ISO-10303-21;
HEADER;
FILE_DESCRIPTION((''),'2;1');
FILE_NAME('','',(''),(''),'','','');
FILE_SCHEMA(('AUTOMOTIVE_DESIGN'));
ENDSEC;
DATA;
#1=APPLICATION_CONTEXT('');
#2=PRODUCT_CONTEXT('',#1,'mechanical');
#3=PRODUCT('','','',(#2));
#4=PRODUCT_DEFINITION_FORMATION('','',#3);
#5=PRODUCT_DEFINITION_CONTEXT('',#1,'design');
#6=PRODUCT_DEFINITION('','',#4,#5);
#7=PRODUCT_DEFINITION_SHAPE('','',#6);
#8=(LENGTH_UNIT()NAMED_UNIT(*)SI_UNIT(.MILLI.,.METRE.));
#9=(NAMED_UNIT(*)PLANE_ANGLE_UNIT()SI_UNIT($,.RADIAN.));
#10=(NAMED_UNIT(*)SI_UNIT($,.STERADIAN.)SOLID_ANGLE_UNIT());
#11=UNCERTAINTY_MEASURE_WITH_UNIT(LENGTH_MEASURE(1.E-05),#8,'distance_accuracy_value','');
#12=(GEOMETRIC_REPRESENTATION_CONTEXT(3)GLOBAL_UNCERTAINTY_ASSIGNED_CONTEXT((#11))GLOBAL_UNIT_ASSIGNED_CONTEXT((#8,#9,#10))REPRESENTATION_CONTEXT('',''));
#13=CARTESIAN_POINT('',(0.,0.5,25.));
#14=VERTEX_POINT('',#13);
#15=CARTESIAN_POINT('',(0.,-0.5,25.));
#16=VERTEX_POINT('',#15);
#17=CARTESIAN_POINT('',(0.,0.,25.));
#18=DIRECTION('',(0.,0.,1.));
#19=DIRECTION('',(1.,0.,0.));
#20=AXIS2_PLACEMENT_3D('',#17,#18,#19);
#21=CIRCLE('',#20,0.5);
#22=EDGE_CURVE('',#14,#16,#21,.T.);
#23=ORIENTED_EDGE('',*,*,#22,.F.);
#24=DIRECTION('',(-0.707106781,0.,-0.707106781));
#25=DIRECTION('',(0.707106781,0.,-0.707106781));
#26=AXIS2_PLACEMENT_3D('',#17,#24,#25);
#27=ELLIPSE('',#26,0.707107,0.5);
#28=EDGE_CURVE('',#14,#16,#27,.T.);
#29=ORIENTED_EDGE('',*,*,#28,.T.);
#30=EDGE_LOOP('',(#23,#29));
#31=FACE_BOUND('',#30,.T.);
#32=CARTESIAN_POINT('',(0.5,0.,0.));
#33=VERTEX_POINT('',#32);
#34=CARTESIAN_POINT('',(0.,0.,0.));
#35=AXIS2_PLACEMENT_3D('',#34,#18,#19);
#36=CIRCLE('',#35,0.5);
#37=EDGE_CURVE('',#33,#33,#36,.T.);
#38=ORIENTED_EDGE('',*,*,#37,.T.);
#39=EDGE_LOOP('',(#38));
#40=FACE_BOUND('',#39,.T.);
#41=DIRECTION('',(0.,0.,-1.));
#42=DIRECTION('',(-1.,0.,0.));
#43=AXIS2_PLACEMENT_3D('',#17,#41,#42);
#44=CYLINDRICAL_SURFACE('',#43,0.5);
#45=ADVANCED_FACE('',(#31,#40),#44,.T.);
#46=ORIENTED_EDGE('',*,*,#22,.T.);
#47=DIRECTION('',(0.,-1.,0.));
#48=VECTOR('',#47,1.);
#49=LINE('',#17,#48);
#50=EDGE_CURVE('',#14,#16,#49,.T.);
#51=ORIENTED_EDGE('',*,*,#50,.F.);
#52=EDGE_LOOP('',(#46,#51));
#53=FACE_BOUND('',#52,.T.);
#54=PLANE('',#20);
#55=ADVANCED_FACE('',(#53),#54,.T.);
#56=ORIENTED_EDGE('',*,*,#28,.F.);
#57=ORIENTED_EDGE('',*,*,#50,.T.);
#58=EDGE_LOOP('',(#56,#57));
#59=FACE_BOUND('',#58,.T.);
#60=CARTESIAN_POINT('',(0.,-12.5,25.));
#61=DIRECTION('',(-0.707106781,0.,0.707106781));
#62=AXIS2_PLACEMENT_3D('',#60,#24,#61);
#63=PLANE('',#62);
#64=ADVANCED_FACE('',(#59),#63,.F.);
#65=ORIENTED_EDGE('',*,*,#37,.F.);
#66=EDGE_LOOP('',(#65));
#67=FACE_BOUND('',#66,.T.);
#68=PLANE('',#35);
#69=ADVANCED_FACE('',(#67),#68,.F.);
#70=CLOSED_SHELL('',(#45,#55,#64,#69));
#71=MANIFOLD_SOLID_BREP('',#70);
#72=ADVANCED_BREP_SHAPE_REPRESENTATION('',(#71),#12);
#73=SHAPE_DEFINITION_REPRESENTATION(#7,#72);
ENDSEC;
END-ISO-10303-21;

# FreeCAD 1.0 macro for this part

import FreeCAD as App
import Part
import Sketcher

V = App.Vector

doc = App.newDocument("Part")
params = doc.addObject("Spreadsheet::Sheet", "Params")
for row, (alias, value) in enumerate([
    ("sketch1_diameter", "1 mm"),
    ("pad1_length", "25 mm"),
    ("sketch2_width", "0.5 mm"),
    ("pocket1_length", "25 mm"),
], start=1):
    params.set(f"A{row}", alias)
    params.set(f"B{row}", "=" + value)
    params.setAlias(f"B{row}", alias)

body = doc.addObject("PartDesign::Body", "Body")

# Sketch on XY plane
sketch1 = doc.addObject("Sketcher::SketchObject", "Sketch")
body.addObject(sketch1)
sketch1.AttachmentSupport = (doc.XY_Plane, [""])
sketch1.MapMode = "FlatFace"
sketch1.addGeometry(Part.Circle(V(0, 0, 0), V(0, 0, 1), 0.5), False)
sketch1.addConstraint([
    Sketcher.Constraint("Coincident", 0, 3, -1, 1),
    Sketcher.Constraint("Diameter", 0, 1.0),
])
sketch1.setExpression("Constraints[1]", "Params.sketch1_diameter")
pad1 = doc.addObject("PartDesign::Pad", "Pad")
body.addObject(pad1)
pad1.Profile = sketch1
pad1.setExpression("Length", "Params.pad1_length")

# Sketch on XZ plane
sketch2 = doc.addObject("Sketcher::SketchObject", "Sketch001")
body.addObject(sketch2)
sketch2.AttachmentSupport = (doc.XZ_Plane, [""])
sketch2.MapMode = "FlatFace"
sketch2.addGeometry([
    Part.LineSegment(V(0.5, 24.5, 0), V(0, 25, 0)),
    Part.LineSegment(V(0, 25, 0), V(0.5, 25, 0)),
    Part.LineSegment(V(0.5, 25, 0), V(0.5, 24.5, 0)),
], False)
sketch2.addConstraint([
    Sketcher.Constraint("Coincident", 0, 2, 1, 1),
    Sketcher.Constraint("Coincident", 1, 2, 2, 1),
    Sketcher.Constraint("Coincident", 2, 2, 0, 1),
    Sketcher.Constraint("Horizontal", 1),
    Sketcher.Constraint("Vertical", 2),
    Sketcher.Constraint("PointOnObject", 0, 2, -2),
    Sketcher.Constraint("Equal", 1, 2),
    Sketcher.Constraint("DistanceX", 1, 1, 1, 2, 0.5),
    Sketcher.Constraint("DistanceY", -1, 1, 0, 2, 25.0),
])
sketch2.setExpression("Constraints[7]", "Params.sketch2_width")
pocket1 = doc.addObject("PartDesign::Pocket", "Pocket")
body.addObject(pocket1)
pocket1.Profile = sketch2
pocket1.setExpression("Length", "Params.pocket1_length")
pocket1.Midplane = True

doc.recompute()
